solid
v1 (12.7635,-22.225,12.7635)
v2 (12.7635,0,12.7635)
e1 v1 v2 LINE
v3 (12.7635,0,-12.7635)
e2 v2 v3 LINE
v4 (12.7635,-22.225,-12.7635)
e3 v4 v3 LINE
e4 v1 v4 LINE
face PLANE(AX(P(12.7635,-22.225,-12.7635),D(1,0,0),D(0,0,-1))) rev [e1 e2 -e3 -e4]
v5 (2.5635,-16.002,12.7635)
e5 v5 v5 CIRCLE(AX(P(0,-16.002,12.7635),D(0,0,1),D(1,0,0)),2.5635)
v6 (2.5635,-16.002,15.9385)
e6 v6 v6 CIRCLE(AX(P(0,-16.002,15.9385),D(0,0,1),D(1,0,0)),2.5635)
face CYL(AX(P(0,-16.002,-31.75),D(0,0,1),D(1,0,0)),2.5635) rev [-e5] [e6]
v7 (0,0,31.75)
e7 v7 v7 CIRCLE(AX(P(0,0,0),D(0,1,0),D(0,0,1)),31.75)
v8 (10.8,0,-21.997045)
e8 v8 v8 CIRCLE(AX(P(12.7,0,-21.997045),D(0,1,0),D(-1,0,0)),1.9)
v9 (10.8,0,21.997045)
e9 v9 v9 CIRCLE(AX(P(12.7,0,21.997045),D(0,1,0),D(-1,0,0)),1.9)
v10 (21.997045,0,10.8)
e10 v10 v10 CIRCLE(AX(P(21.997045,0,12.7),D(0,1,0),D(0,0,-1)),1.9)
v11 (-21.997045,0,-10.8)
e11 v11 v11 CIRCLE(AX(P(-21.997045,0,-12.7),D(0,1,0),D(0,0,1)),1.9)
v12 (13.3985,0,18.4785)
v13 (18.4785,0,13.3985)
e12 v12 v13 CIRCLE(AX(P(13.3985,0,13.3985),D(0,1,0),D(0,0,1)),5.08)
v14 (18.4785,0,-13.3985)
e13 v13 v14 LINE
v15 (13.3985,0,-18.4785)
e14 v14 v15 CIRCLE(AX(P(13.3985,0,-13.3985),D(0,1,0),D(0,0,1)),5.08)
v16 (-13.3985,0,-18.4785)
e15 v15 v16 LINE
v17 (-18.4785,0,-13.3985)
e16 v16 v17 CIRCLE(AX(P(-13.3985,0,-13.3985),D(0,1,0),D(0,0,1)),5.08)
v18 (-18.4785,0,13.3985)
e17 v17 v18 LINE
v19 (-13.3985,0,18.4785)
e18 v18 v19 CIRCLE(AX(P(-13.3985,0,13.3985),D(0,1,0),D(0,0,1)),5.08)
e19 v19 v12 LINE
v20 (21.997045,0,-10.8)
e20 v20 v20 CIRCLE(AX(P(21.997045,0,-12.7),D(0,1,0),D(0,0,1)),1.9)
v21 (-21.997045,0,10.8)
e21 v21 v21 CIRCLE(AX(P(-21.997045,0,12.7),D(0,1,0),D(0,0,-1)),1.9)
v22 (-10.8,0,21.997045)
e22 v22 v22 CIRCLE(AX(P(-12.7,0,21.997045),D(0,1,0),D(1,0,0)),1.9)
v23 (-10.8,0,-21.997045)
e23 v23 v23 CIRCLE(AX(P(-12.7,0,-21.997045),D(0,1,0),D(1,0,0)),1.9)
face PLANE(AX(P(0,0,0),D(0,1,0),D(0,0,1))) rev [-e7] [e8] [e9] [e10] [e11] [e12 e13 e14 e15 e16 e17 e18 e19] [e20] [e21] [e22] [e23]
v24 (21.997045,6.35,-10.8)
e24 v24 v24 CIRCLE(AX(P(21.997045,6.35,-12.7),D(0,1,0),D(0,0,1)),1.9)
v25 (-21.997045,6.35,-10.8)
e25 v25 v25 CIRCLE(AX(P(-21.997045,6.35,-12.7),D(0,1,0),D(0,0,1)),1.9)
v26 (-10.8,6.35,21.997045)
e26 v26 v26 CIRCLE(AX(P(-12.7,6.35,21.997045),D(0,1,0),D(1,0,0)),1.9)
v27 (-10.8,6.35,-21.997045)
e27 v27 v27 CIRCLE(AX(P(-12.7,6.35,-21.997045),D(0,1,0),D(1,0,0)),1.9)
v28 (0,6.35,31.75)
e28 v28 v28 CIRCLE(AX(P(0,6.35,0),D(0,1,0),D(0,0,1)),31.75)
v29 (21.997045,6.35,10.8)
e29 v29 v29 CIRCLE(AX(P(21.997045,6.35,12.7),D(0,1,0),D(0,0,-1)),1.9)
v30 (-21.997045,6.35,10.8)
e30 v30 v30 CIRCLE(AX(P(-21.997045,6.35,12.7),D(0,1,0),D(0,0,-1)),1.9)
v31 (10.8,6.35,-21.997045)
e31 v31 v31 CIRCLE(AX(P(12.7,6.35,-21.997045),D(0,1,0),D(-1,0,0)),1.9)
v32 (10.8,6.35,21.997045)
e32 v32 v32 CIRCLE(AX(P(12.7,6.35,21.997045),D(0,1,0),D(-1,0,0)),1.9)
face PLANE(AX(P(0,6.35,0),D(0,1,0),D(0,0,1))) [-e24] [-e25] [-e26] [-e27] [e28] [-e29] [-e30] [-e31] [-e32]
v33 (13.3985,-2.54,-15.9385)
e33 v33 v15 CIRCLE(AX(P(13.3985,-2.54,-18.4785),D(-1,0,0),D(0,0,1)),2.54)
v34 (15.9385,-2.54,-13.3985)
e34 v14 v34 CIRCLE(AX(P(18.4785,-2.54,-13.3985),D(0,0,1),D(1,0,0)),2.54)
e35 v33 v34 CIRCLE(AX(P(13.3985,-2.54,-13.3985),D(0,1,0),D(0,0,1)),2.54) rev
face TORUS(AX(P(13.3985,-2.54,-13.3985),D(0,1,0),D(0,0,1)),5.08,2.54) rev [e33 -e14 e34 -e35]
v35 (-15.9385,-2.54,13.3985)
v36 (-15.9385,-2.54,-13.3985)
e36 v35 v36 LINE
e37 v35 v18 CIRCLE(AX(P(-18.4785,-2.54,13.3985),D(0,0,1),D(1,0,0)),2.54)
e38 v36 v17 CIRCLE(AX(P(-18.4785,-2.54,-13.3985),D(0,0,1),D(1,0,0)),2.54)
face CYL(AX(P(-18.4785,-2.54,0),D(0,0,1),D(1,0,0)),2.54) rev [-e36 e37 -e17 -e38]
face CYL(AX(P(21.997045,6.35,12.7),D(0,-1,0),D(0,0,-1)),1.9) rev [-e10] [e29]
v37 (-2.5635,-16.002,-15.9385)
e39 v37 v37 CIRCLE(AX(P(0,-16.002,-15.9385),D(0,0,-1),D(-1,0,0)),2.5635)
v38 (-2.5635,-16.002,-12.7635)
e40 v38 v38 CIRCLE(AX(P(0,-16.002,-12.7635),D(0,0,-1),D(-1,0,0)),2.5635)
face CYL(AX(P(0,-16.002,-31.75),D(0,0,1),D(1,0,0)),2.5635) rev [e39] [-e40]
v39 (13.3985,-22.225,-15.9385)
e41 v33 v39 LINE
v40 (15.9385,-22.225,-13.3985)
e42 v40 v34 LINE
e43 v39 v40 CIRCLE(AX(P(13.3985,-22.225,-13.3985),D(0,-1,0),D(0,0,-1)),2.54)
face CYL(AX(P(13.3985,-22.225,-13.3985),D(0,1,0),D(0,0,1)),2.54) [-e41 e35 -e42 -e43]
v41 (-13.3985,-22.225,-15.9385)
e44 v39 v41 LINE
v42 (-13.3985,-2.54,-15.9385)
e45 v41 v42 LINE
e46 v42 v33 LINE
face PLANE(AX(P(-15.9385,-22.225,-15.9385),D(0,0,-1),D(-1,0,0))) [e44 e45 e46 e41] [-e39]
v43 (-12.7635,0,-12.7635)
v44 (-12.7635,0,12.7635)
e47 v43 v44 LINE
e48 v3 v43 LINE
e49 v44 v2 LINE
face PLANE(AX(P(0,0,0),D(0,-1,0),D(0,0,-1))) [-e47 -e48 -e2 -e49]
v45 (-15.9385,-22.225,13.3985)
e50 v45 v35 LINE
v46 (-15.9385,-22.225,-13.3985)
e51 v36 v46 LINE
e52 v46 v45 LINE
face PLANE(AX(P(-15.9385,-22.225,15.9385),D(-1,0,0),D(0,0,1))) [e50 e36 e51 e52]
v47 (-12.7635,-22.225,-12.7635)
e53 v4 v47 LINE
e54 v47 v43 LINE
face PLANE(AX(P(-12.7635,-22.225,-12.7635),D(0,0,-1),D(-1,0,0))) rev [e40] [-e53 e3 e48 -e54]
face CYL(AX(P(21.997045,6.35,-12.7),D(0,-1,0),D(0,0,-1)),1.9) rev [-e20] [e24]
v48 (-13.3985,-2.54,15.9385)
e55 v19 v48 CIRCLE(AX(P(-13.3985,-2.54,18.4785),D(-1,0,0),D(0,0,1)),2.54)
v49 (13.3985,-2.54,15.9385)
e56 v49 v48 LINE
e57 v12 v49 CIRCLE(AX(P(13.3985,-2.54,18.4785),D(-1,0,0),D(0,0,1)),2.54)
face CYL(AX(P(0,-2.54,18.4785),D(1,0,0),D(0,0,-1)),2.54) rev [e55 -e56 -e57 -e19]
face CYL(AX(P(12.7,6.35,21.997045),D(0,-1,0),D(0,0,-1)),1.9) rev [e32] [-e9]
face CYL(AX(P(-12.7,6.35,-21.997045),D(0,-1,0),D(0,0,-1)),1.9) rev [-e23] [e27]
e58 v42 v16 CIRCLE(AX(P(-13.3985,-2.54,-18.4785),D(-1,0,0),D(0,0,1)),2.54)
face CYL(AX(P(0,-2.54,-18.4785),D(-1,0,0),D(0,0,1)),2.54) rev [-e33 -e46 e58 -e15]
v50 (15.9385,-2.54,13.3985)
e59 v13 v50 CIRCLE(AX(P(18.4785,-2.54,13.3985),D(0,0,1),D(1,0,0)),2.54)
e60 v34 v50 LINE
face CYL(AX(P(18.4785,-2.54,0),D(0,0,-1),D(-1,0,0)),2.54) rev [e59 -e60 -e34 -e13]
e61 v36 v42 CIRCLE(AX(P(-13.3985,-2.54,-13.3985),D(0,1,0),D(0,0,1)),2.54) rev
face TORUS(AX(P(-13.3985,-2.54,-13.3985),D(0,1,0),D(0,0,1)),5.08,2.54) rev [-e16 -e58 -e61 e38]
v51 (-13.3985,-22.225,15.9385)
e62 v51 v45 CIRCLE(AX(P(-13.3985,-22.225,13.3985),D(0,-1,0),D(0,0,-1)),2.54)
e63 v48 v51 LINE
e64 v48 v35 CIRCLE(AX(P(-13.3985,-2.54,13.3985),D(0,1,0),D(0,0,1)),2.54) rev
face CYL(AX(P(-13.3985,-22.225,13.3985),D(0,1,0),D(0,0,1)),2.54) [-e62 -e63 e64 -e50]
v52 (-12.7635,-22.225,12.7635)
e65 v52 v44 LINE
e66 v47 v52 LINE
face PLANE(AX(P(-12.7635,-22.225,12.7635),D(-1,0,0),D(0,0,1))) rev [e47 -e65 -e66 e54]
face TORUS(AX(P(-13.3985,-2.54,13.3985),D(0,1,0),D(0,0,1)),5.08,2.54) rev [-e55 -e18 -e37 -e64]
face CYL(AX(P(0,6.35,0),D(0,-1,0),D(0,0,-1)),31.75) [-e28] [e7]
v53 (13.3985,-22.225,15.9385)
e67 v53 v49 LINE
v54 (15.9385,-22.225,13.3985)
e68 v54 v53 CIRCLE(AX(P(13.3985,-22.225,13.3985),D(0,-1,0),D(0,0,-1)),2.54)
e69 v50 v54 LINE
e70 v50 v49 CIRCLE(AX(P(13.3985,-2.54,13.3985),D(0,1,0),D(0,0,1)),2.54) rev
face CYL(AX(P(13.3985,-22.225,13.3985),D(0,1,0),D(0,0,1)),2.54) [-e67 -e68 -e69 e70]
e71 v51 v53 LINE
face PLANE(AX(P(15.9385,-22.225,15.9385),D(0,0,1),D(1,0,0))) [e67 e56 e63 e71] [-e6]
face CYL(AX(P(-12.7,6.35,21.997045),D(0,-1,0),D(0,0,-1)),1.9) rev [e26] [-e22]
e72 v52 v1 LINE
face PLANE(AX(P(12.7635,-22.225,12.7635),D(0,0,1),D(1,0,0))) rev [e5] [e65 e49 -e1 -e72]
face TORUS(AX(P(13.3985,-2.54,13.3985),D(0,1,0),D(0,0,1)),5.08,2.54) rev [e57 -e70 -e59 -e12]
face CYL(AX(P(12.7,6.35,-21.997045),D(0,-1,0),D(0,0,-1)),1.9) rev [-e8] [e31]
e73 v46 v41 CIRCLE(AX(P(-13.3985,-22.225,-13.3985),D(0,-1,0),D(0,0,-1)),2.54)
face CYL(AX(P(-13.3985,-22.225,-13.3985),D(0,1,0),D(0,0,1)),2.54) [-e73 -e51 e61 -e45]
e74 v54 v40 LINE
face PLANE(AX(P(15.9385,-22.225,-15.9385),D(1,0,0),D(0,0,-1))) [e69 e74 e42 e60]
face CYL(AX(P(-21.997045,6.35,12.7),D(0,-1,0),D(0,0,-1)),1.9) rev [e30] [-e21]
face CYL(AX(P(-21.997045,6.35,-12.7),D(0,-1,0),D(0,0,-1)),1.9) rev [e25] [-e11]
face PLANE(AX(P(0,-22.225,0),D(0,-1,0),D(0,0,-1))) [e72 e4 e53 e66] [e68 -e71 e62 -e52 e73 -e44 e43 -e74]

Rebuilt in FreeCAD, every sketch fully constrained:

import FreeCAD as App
import Part
import Sketcher
from FreeCAD import Vector
Q = App.Units.Quantity


def edges_at(feature, points):
    """Names of the edges that pass closest to the given points."""
    edges = feature.Shape.Edges
    near = lambda p: min(range(len(edges)), key=lambda i: edges[i].distToShape(Part.Vertex(*p))[0])
    return sorted({f"Edge{near(p) + 1}" for p in points})

doc = App.newDocument("Part")
params = doc.addObject("Spreadsheet::Sheet", "Params")
for row, (alias, value) in enumerate([
    ("sketch1_diameter", "2.5 in"),
    ("pad1_length", "0.25 in"),
    ("sketch2_width", "1.255 in"),
    ("pad2_length", "0.875 in"),
    ("sketch3_width", "1.005 in"),
    ("fillet_radius", "0.1 in"),
    ("fillet2_radius", "0.1 in"),
], start=1):
    params.set(f"A{row}", alias)
    params.set(f"B{row}", "=" + value)
    params.setAlias(f"B{row}", alias)

body = doc.addObject("PartDesign::Body", "Body")

# Sketch on XZ plane
sketch1 = body.newObject("Sketcher::SketchObject", "Sketch")
sketch1.AttachmentSupport = (doc.getObject("XZ_Plane"), [""])
sketch1.MapMode = "FlatFace"
sketch1.addGeometry(Part.Circle(Vector(0, 0, 0), Vector(0, 0, 1), 31.75), False)
sketch1.addConstraint(Sketcher.Constraint("Coincident", 0, 3, -1, 1))
sketch1.addConstraint(Sketcher.Constraint("Diameter", 0, Q("2.5 in")))
sketch1.setExpression("Constraints[1]", "Params.sketch1_diameter")
pad1 = body.newObject("PartDesign::Pad", "Pad")
pad1.Profile = sketch1
pad1.setExpression("Length", "Params.pad1_length")
pad1.Reversed = True

# Sketch on XZ plane
sketch2 = body.newObject("Sketcher::SketchObject", "Sketch001")
sketch2.AttachmentSupport = (doc.getObject("XZ_Plane"), [""])
sketch2.MapMode = "FlatFace"
sketch2.addGeometry(Part.LineSegment(Vector(-15.9385, -15.9385, 0), Vector(-15.9385, 15.9385, 0)), False)
sketch2.addGeometry(Part.LineSegment(Vector(-15.9385, 15.9385, 0), Vector(15.9385, 15.9385, 0)), False)
sketch2.addGeometry(Part.LineSegment(Vector(15.9385, 15.9385, 0), Vector(15.9385, -15.9385, 0)), False)
sketch2.addGeometry(Part.LineSegment(Vector(15.9385, -15.9385, 0), Vector(-15.9385, -15.9385, 0)), False)
sketch2.addConstraint(Sketcher.Constraint("Coincident", 0, 2, 1, 1))
sketch2.addConstraint(Sketcher.Constraint("Coincident", 1, 2, 2, 1))
sketch2.addConstraint(Sketcher.Constraint("Coincident", 2, 2, 3, 1))
sketch2.addConstraint(Sketcher.Constraint("Coincident", 3, 2, 0, 1))
sketch2.addConstraint(Sketcher.Constraint("Vertical", 0))
sketch2.addConstraint(Sketcher.Constraint("Horizontal", 1))
sketch2.addConstraint(Sketcher.Constraint("Vertical", 2))
sketch2.addConstraint(Sketcher.Constraint("Horizontal", 3))
sketch2.addConstraint(Sketcher.Constraint("Symmetric", 0, 2, 2, 2, -1, 1))
sketch2.addConstraint(Sketcher.Constraint("Equal", 3, 0))
sketch2.addConstraint(Sketcher.Constraint("DistanceX", 1, 1, 1, 2, Q("1.255 in")))
sketch2.setExpression("Constraints[10]", "Params.sketch2_width")
pad2 = body.newObject("PartDesign::Pad", "Pad001")
pad2.Profile = sketch2
pad2.setExpression("Length", "Params.pad2_length")

# Sketch on XZ plane
sketch3 = body.newObject("Sketcher::SketchObject", "Sketch002")
sketch3.AttachmentSupport = (doc.getObject("XZ_Plane"), [""])
sketch3.MapMode = "FlatFace"
sketch3.addGeometry(Part.LineSegment(Vector(-12.7635, -12.7635, 0), Vector(-12.7635, 12.7635, 0)), False)
sketch3.addGeometry(Part.LineSegment(Vector(-12.7635, 12.7635, 0), Vector(12.7635, 12.7635, 0)), False)
sketch3.addGeometry(Part.LineSegment(Vector(12.7635, 12.7635, 0), Vector(12.7635, -12.7635, 0)), False)
sketch3.addGeometry(Part.LineSegment(Vector(12.7635, -12.7635, 0), Vector(-12.7635, -12.7635, 0)), False)
sketch3.addConstraint(Sketcher.Constraint("Coincident", 0, 2, 1, 1))
sketch3.addConstraint(Sketcher.Constraint("Coincident", 1, 2, 2, 1))
sketch3.addConstraint(Sketcher.Constraint("Coincident", 2, 2, 3, 1))
sketch3.addConstraint(Sketcher.Constraint("Coincident", 3, 2, 0, 1))
sketch3.addConstraint(Sketcher.Constraint("Vertical", 0))
sketch3.addConstraint(Sketcher.Constraint("Horizontal", 1))
sketch3.addConstraint(Sketcher.Constraint("Vertical", 2))
sketch3.addConstraint(Sketcher.Constraint("Horizontal", 3))
sketch3.addConstraint(Sketcher.Constraint("Symmetric", 0, 2, 2, 2, -1, 1))
sketch3.addConstraint(Sketcher.Constraint("Equal", 3, 0))
sketch3.addConstraint(Sketcher.Constraint("DistanceX", 1, 1, 1, 2, Q("1.005 in")))
sketch3.setExpression("Constraints[10]", "Params.sketch3_width")
pocket1 = body.newObject("PartDesign::Pocket", "Pocket")
pocket1.Profile = sketch3
pocket1.Type = "ThroughAll"
pocket1.Reversed = True

# Sketch on XZ plane
sketch4 = body.newObject("Sketcher::SketchObject", "Sketch003")
sketch4.AttachmentSupport = (doc.getObject("XZ_Plane"), [""])
sketch4.MapMode = "FlatFace"
sketch4.addGeometry(Part.Circle(Vector(21.997045, -12.7, 0), Vector(0, 0, 1), 1.9), False)
sketch4.addGeometry(Part.Circle(Vector(21.997045, 12.7, 0), Vector(0, 0, 1), 1.9), False)
sketch4.addConstraint(Sketcher.Constraint("Equal", 0, 1))
sketch4.addConstraint(Sketcher.Constraint("Symmetric", 0, 3, 1, 3, -1))
sketch4.addConstraint(Sketcher.Constraint("DistanceY", 0, 3, 1, 3, Q("1 in")))
sketch4.addConstraint(Sketcher.Constraint("Diameter", 0, Q("3.8 mm")))
sketch4.addConstraint(Sketcher.Constraint("DistanceX", -1, 1, 0, 3, Q("21.997045 mm")))
pocket2 = body.newObject("PartDesign::Pocket", "Pocket001")
pocket2.Profile = sketch4
pocket2.Type = "ThroughAll"

# Sketch on XY plane
sketch5 = body.newObject("Sketcher::SketchObject", "Sketch004")
sketch5.AttachmentSupport = (doc.getObject("XY_Plane"), [""])
sketch5.MapMode = "FlatFace"
sketch5.addGeometry(Part.Circle(Vector(0, -16.002, 0), Vector(0, 0, 1), 2.5635), False)
sketch5.addConstraint(Sketcher.Constraint("PointOnObject", 0, 3, -2))
sketch5.addConstraint(Sketcher.Constraint("Diameter", 0, Q("5.127 mm")))
sketch5.addConstraint(Sketcher.Constraint("DistanceY", 0, 3, -1, 1, Q("0.63 in")))
pocket3 = body.newObject("PartDesign::Pocket", "Pocket002")
pocket3.Profile = sketch5
pocket3.Type = "ThroughAll"
pocket3.Midplane = True
doc.recompute()

polarpattern = body.newObject("PartDesign::PolarPattern", "PolarPattern")
polarpattern.Originals = [pocket2]
polarpattern.Axis = (doc.getObject("Y_Axis"), [""])
polarpattern.Angle = 360
polarpattern.Occurrences = 4
body.Tip = polarpattern
doc.recompute()

fillet = body.newObject("PartDesign::Fillet", "Fillet")
fillet.Base = (polarpattern, edges_at(polarpattern, [
    (-15.938, -11.113, -15.938),
    (15.938, -11.113, -15.938),
    (15.938, -11.113, 15.938),
    (-15.938, -11.113, 15.938),
]))
fillet.setExpression("Radius", "Params.fillet_radius")
doc.recompute()

fillet2 = body.newObject("PartDesign::Fillet", "Fillet001")
fillet2.Base = (fillet, edges_at(fillet, [
    (-15.938, 0, 0),
    (0, 0, 15.938),
    (15.938, 0, 0),
    (0, 0, -15.938),
    (-15.195, 0, 15.195),
    (15.195, 0, 15.195),
    (15.195, 0, -15.195),
    (-15.195, 0, -15.195),
]))
fillet2.setExpression("Radius", "Params.fillet2_radius")

doc.recompute()
